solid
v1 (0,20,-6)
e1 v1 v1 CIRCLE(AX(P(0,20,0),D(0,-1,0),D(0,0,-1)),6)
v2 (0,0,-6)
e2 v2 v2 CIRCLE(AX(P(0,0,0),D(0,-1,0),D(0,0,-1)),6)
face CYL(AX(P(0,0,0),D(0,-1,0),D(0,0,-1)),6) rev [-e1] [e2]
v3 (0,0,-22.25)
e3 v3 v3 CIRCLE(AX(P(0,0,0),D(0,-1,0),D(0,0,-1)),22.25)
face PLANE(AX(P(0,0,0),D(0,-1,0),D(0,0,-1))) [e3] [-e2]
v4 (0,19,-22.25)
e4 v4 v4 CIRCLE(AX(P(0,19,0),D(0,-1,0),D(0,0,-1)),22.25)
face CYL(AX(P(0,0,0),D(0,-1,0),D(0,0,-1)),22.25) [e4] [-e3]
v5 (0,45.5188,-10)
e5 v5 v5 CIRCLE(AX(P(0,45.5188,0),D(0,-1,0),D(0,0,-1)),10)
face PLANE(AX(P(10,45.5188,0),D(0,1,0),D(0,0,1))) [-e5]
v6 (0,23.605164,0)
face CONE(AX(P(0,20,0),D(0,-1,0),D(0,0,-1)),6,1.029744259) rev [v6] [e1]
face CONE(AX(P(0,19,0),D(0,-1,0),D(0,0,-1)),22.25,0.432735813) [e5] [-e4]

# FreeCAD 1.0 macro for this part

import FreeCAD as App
import Part
import Sketcher

V = App.Vector


def add_polygon(sketch, points):
    """Adds a closed chain of lines whose ends are joined by coincident constraints."""
    first, n = sketch.GeometryCount, len(points)
    for a, b in zip(points, points[1:] + points[:1]):
        sketch.addGeometry(Part.LineSegment(App.Vector(*a, 0), App.Vector(*b, 0)), False)
    for i in range(n):
        sketch.addConstraint(Sketcher.Constraint("Coincident", first + i, 2, first + (i + 1) % n, 1))

doc = App.newDocument("Part")
body = doc.addObject("PartDesign::Body", "Body")

# Sketch on XY plane
sketch1 = body.newObject("Sketcher::SketchObject", "Sketch")
sketch1.AttachmentSupport = (doc.getObject("XY_Plane"), [""])
sketch1.MapMode = "FlatFace"
add_polygon(sketch1, [(0, 46), (0, 0), (22, 0), (22, 19), (10, 46)])  # lines 0-4
sketch1.addConstraint([
    Sketcher.Constraint("Vertical", 0),
    Sketcher.Constraint("Horizontal", 1),
    Sketcher.Constraint("Vertical", 2),
    Sketcher.Constraint("Horizontal", 4),
    Sketcher.Constraint("Coincident", 0, 2, -1, 1),
    Sketcher.Constraint("DistanceX", 4, 2, 4, 1, 10.0),
    Sketcher.Constraint("DistanceY", 2, 1, 2, 2, 19.0),
    Sketcher.Constraint("DistanceX", 1, 1, 1, 2, 22.25),
    Sketcher.Constraint("DistanceY", 0, 2, 0, 1, 45.5188),
])
revolution = body.newObject("PartDesign::Revolution", "Revolution")
revolution.Profile = sketch1
revolution.ReferenceAxis = (sketch1, ["V_Axis"])
revolution.Angle = 360

# Sketch on XZ plane
sketch2 = body.newObject("Sketcher::SketchObject", "Sketch001")
sketch2.AttachmentSupport = (doc.getObject("XZ_Plane"), [""])
sketch2.MapMode = "FlatFace"
sketch2.addGeometry(Part.Circle(V(0, 0, 0), V(0, 0, 1), 6), False)
sketch2.addConstraint([
    Sketcher.Constraint("Coincident", 0, 3, -1, 1),
    Sketcher.Constraint("Diameter", 0, 12.0),
])
doc.recompute()
hole = body.newObject("PartDesign::Hole", "Hole")
hole.Profile = sketch2
hole.ThreadType = "None"
hole.Diameter = 12
hole.DepthType = "Dimension"
hole.Depth = 20
hole.DrillPoint = "Angled"
hole.DrillPointAngle = 118

doc.recompute()
